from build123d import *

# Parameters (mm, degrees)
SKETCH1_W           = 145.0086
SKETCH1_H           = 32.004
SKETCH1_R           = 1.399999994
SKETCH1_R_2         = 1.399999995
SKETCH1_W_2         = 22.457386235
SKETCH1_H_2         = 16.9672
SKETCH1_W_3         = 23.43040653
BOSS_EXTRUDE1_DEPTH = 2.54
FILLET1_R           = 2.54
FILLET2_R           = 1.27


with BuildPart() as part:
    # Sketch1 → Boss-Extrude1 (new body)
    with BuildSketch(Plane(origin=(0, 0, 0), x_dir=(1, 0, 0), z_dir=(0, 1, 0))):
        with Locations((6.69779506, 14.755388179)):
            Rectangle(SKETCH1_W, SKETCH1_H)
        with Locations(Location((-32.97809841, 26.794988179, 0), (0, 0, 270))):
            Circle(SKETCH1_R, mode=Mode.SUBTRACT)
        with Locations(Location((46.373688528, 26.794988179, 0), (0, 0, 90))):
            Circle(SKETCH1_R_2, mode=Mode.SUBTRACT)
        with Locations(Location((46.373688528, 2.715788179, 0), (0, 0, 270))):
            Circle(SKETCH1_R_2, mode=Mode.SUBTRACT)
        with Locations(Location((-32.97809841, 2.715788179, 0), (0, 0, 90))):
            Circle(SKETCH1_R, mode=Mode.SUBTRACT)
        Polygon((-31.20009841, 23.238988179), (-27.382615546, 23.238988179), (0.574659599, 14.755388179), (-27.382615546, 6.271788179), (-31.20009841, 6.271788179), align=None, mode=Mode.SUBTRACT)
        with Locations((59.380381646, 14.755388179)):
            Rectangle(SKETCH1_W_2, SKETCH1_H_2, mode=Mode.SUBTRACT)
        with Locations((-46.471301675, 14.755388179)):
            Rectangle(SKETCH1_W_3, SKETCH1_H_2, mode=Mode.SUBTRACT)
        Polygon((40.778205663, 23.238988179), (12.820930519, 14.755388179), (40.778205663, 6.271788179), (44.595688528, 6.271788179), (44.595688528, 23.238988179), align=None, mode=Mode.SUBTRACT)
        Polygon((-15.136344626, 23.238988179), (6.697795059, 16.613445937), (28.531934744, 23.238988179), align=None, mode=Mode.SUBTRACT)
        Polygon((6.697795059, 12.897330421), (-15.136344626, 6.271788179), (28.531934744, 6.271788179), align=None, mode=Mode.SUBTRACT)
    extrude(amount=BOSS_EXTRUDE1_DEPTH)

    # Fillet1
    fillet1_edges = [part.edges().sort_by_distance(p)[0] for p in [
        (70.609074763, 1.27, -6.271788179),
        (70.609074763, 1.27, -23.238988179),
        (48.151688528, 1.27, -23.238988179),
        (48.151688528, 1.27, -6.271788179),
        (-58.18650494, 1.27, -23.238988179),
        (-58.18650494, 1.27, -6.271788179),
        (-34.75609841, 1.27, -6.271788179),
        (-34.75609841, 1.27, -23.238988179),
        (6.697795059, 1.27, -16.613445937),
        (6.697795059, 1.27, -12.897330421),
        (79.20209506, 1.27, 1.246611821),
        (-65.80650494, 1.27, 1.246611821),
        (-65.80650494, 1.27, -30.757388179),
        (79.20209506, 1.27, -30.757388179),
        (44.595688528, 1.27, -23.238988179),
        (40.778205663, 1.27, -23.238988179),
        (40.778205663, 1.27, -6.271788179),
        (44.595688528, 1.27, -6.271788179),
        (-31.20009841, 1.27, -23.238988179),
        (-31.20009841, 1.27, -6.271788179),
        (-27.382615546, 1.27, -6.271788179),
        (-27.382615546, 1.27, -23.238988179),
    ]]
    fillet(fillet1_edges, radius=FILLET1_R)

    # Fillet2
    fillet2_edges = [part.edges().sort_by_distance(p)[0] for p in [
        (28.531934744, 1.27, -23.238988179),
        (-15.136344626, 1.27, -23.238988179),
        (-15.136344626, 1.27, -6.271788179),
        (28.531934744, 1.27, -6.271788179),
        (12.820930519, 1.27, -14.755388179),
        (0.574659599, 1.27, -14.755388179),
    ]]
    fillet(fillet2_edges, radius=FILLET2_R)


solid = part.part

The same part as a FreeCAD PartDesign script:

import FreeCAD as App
import Part
import Sketcher
from FreeCAD import Vector
Q = App.Units.Quantity


def edges_at(feature, points):
    """Names of the edges that pass closest to the given points."""
    edges = feature.Shape.Edges
    near = lambda p: min(range(len(edges)), key=lambda i: edges[i].distToShape(Part.Vertex(*p))[0])
    return sorted({f"Edge{near(p) + 1}" for p in points})


def add_polygon(sketch, points):
    """Adds a closed chain of lines whose ends are joined by coincident constraints."""
    first, n = sketch.GeometryCount, len(points)
    for a, b in zip(points, points[1:] + points[:1]):
        sketch.addGeometry(Part.LineSegment(App.Vector(*a, 0), App.Vector(*b, 0)), False)
    for i in range(n):
        sketch.addConstraint(Sketcher.Constraint("Coincident", first + i, 2, first + (i + 1) % n, 1))

doc = App.newDocument("Part")
body = doc.addObject("PartDesign::Body", "Body")

sketch1 = doc.addObject("Sketcher::SketchObject", "Sketch")
body.addObject(sketch1)
sketch1.AttachmentSupport = (doc.XZ_Plane, [""])
sketch1.MapMode = "FlatFace"
add_polygon(sketch1, [(-65.8, -30.8), (-65.8, 1.2), (79.2, 1.2), (79.2, -30.8)])
sketch1.addGeometry(Part.Circle(Vector(-33, -2.7, 0), Vector(0, 0, 1), 1.4), False)
add_polygon(sketch1, [(-34.8, -6.3), (-58.2, -6.3), (-58.2, -23.2), (-34.8, -23.2)])
add_polygon(sketch1, [(-31.2, -6.3), (-31.2, -23.2), (-27.4, -23.2), (0.6, -14.8), (-27.4, -6.3)])
sketch1.addGeometry(Part.Circle(Vector(46.4, -2.7, 0), Vector(0, 0, 1), 1.4), False)
add_polygon(sketch1, [(-15.1, -6.3), (6.7, -12.9), (28.5, -6.3)])
add_polygon(sketch1, [(12.8, -14.8), (40.8, -23.2), (44.6, -23.2), (44.6, -6.3), (40.8, -6.3)])
add_polygon(sketch1, [(70.6, -6.3), (48.2, -6.3), (48.2, -23.2), (70.6, -23.2)])
sketch1.addGeometry(Part.Circle(Vector(-33, -26.8, 0), Vector(0, 0, 1), 1.4), False)
add_polygon(sketch1, [(6.7, -16.6), (-15.1, -23.2), (28.5, -23.2)])
sketch1.addGeometry(Part.Circle(Vector(46.4, -26.8, 0), Vector(0, 0, 1), 1.4), False)
sketch1.addConstraint([
    Sketcher.Constraint("Vertical", 0),
    Sketcher.Constraint("Horizontal", 1),
    Sketcher.Constraint("Vertical", 2),
    Sketcher.Constraint("Horizontal", 3),
    Sketcher.Constraint("Horizontal", 5),
    Sketcher.Constraint("Vertical", 6),
    Sketcher.Constraint("Horizontal", 7),
    Sketcher.Constraint("Vertical", 8),
    Sketcher.Constraint("Vertical", 9),
    Sketcher.Constraint("Horizontal", 10),
    Sketcher.Constraint("Horizontal", 13),
    Sketcher.Constraint("Horizontal", 17),
    Sketcher.Constraint("Horizontal", 19),
    Sketcher.Constraint("Vertical", 20),
    Sketcher.Constraint("Horizontal", 21),
    Sketcher.Constraint("Horizontal", 23),
    Sketcher.Constraint("Vertical", 24),
    Sketcher.Constraint("Horizontal", 25),
    Sketcher.Constraint("Vertical", 26),
    Sketcher.Constraint("Horizontal", 29),
    Sketcher.Constraint("Equal", 4, 14),
    Sketcher.Constraint("Equal", 14, 27),
    Sketcher.Constraint("Equal", 27, 31),
    Sketcher.Constraint("Parallel", 12, 15),
    Sketcher.Constraint("Parallel", 11, 16),
    Sketcher.Constraint("Parallel", 15, 18),
    Sketcher.Constraint("Parallel", 16, 22),
    Sketcher.Constraint("Parallel", 22, 28),
    Sketcher.Constraint("Parallel", 18, 30),
    Sketcher.Constraint("Horizontal", 4, 3, 14, 3),
    Sketcher.Constraint("Horizontal", 27, 3, 31, 3),
    Sketcher.Constraint("Horizontal", 7, 2, 9, 2),
    Sketcher.Constraint("Horizontal", 8, 2, 12, 2),
    Sketcher.Constraint("Horizontal", 13, 2, 16, 2),
    Sketcher.Constraint("Horizontal", 10, 2, 18, 2),
    Sketcher.Constraint("Horizontal", 17, 2, 20, 2),
    Sketcher.Constraint("Horizontal", 11, 2, 22, 2),
    Sketcher.Constraint("Horizontal", 21, 2, 23, 2),
    Sketcher.Constraint("Horizontal", 19, 2, 24, 2),
    Sketcher.Constraint("Horizontal", 25, 2, 28, 2),
    Sketcher.Constraint("Vertical", 4, 3, 27, 3),
    Sketcher.Constraint("Vertical", 14, 3, 31, 3),
    Sketcher.Constraint("Vertical", 10, 2, 12, 2),
    Sketcher.Constraint("Vertical", 18, 2, 21, 2),
    Sketcher.Constraint("Vertical", 17, 2, 28, 2),
    Sketcher.Constraint("Vertical", 16, 2, 29, 2),
    Sketcher.Constraint("Equal", 13, 19),
    Sketcher.Constraint("DistanceY", 0, 1, 0, 2, Q("1.26 in")),
    Sketcher.Constraint("DistanceX", 0, 2, 5, 2, Q("0.3 in")),
    Sketcher.Constraint("Diameter", 4, Q("2.8 mm")),
    Sketcher.Constraint("DistanceX", 1, 1, 1, 2, Q("5.709 in")),
    Sketcher.Constraint("DistanceY", 6, 2, 6, 1, Q("0.668 in")),
    Sketcher.Constraint("DistanceY", 5, 2, 4, 3, Q("0.14 in")),
    Sketcher.Constraint("DistanceY", 27, 3, 6, 2, Q("0.14 in")),
    Sketcher.Constraint("DistanceX", 7, 2, 27, 3, Q("0.07 in")),
    Sketcher.Constraint("DistanceX", 7, 2, 9, 2, Q("0.14 in")),
    Sketcher.Constraint("DistanceX", 19, 2, 31, 3, Q("0.07 in")),
    Sketcher.Constraint("DistanceX", 20, 2, 23, 2, Q("0.14 in")),
    Sketcher.Constraint("DistanceY", 4, 3, 0, 2, Q("0.156 in")),
    Sketcher.Constraint("DistanceX", 17, 2, 17, 1, Q("43.668279 mm")),
    Sketcher.Constraint("DistanceX", 4, 3, -1, 1, Q("32.978098 mm")),
    Sketcher.Constraint("DistanceX", 5, 2, 5, 1, Q("23.430407 mm")),
    Sketcher.Constraint("DistanceX", 10, 1, 10, 2, Q("3.817483 mm")),
    Sketcher.Constraint("DistanceX", 23, 2, 23, 1, Q("22.457386 mm")),
    Sketcher.Constraint("DistanceY", 4, 3, -1, 1, Q("2.715788 mm")),
    Sketcher.Constraint("DistanceX", -1, 1, 14, 3, Q("46.373689 mm")),
    Sketcher.Constraint("DistanceX", -1, 1, 11, 2, Q("0.57466 mm")),
    Sketcher.Constraint("DistanceX", 12, 2, 15, 2, Q("34.080411 mm")),
])
pad1 = doc.addObject("PartDesign::Pad", "Pad")
body.addObject(pad1)
pad1.Profile = sketch1
pad1.Length = Q("0.1 in")
pad1.Reversed = True
doc.recompute()

fillet = doc.addObject("PartDesign::Fillet", "Fillet")
body.addObject(fillet)
fillet.Base = (pad1, edges_at(pad1, [
    (70.609, 1.27, -6.272),
    (70.609, 1.27, -23.239),
    (48.152, 1.27, -23.239),
    (48.152, 1.27, -6.272),
    (-58.187, 1.27, -23.239),
    (-58.187, 1.27, -6.272),
    (-34.756, 1.27, -6.272),
    (-34.756, 1.27, -23.239),
    (6.698, 1.27, -16.613),
    (6.698, 1.27, -12.897),
    (79.202, 1.27, 1.247),
    (-65.807, 1.27, 1.247),
    (-65.807, 1.27, -30.757),
    (79.202, 1.27, -30.757),
    (44.596, 1.27, -23.239),
    (40.778, 1.27, -23.239),
    (40.778, 1.27, -6.272),
    (44.596, 1.27, -6.272),
    (-31.2, 1.27, -23.239),
    (-31.2, 1.27, -6.272),
    (-27.383, 1.27, -6.272),
    (-27.383, 1.27, -23.239),
]))
fillet.Radius = Q("0.1 in")
doc.recompute()

fillet2 = doc.addObject("PartDesign::Fillet", "Fillet001")
body.addObject(fillet2)
fillet2.Base = (fillet, edges_at(fillet, [
    (28.532, 1.27, -23.239),
    (-15.136, 1.27, -23.239),
    (-15.136, 1.27, -6.272),
    (28.532, 1.27, -6.272),
    (12.821, 1.27, -14.755),
    (0.575, 1.27, -14.755),
]))
fillet2.Radius = Q("0.05 in")

doc.recompute()
